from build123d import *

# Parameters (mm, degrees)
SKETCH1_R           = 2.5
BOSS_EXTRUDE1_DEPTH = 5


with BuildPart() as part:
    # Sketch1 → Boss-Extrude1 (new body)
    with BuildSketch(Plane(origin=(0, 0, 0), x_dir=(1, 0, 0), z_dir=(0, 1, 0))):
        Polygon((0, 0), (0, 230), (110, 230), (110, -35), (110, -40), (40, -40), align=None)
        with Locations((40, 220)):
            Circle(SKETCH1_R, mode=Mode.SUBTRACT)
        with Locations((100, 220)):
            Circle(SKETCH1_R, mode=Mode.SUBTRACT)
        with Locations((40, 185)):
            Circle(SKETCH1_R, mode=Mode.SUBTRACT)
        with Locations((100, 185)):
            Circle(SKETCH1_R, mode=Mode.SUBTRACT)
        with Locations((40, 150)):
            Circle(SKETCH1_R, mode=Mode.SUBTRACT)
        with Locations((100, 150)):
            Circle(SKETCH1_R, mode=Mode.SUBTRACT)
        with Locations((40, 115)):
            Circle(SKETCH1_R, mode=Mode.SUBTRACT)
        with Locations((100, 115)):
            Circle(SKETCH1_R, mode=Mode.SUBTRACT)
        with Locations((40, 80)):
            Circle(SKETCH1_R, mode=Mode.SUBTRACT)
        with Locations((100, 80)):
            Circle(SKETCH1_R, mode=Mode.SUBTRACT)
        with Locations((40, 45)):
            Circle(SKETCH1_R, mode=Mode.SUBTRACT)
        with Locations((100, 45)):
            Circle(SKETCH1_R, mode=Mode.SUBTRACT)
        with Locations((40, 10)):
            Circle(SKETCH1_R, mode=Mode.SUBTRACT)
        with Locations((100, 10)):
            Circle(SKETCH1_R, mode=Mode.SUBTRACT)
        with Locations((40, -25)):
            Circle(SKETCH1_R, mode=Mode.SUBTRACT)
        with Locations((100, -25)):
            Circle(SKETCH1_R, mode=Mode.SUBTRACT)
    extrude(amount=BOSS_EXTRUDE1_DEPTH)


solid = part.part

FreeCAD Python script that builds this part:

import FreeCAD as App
import Part
import Sketcher
from FreeCAD import Vector
Q = App.Units.Quantity

doc = App.newDocument("Part")
body = doc.addObject("PartDesign::Body", "Body")

sketch1 = doc.addObject("Sketcher::SketchObject", "Sketch")
body.addObject(sketch1)
sketch1.AttachmentSupport = (doc.XZ_Plane, [""])
sketch1.MapMode = "FlatFace"
sketch1.addGeometry([
    Part.LineSegment(Vector(0, -230, 0), Vector(0, 0, 0)),
    Part.LineSegment(Vector(0, 0, 0), Vector(40, 40, 0)),
    Part.LineSegment(Vector(40, 40, 0), Vector(110, 40, 0)),
    Part.LineSegment(Vector(110, 40, 0), Vector(110, -230, 0)),
    Part.LineSegment(Vector(110, -230, 0), Vector(0, -230, 0)),
    Part.Circle(Vector(100, 25, 0), Vector(0, 0, 1), 2.5),
    Part.Circle(Vector(100, -10, 0), Vector(0, 0, 1), 2.5),
    Part.Circle(Vector(100, -45, 0), Vector(0, 0, 1), 2.5),
    Part.Circle(Vector(100, -80, 0), Vector(0, 0, 1), 2.5),
    Part.Circle(Vector(40, 25, 0), Vector(0, 0, 1), 2.5),
    Part.Circle(Vector(40, -10, 0), Vector(0, 0, 1), 2.5),
    Part.Circle(Vector(40, -45, 0), Vector(0, 0, 1), 2.5),
    Part.Circle(Vector(40, -80, 0), Vector(0, 0, 1), 2.5),
    Part.Circle(Vector(100, -115, 0), Vector(0, 0, 1), 2.5),
    Part.Circle(Vector(100, -150, 0), Vector(0, 0, 1), 2.5),
    Part.Circle(Vector(100, -185, 0), Vector(0, 0, 1), 2.5),
    Part.Circle(Vector(100, -220, 0), Vector(0, 0, 1), 2.5),
    Part.Circle(Vector(40, -115, 0), Vector(0, 0, 1), 2.5),
    Part.Circle(Vector(40, -150, 0), Vector(0, 0, 1), 2.5),
    Part.Circle(Vector(40, -185, 0), Vector(0, 0, 1), 2.5),
    Part.Circle(Vector(40, -220, 0), Vector(0, 0, 1), 2.5),
], False)
sketch1.addConstraint([
    Sketcher.Constraint("Coincident", 0, 2, 1, 1),
    Sketcher.Constraint("Coincident", 1, 2, 2, 1),
    Sketcher.Constraint("Coincident", 2, 2, 3, 1),
    Sketcher.Constraint("Coincident", 3, 2, 4, 1),
    Sketcher.Constraint("Coincident", 4, 2, 0, 1),
    Sketcher.Constraint("Vertical", 0),
    Sketcher.Constraint("Horizontal", 2),
    Sketcher.Constraint("Vertical", 3),
    Sketcher.Constraint("Horizontal", 4),
    Sketcher.Constraint("Coincident", 0, 2, -1, 1),
    Sketcher.Constraint("Equal", 5, 6),
    Sketcher.Constraint("Equal", 6, 7),
    Sketcher.Constraint("Equal", 7, 8),
    Sketcher.Constraint("Equal", 8, 9),
    Sketcher.Constraint("Equal", 9, 10),
    Sketcher.Constraint("Equal", 10, 11),
    Sketcher.Constraint("Equal", 11, 12),
    Sketcher.Constraint("Equal", 12, 13),
    Sketcher.Constraint("Equal", 13, 14),
    Sketcher.Constraint("Equal", 14, 15),
    Sketcher.Constraint("Equal", 15, 16),
    Sketcher.Constraint("Equal", 16, 17),
    Sketcher.Constraint("Equal", 17, 18),
    Sketcher.Constraint("Equal", 18, 19),
    Sketcher.Constraint("Equal", 19, 20),
    Sketcher.Constraint("Horizontal", 5, 3, 9, 3),
    Sketcher.Constraint("Horizontal", 6, 3, 10, 3),
    Sketcher.Constraint("Horizontal", 7, 3, 11, 3),
    Sketcher.Constraint("Horizontal", 8, 3, 12, 3),
    Sketcher.Constraint("Horizontal", 13, 3, 17, 3),
    Sketcher.Constraint("Horizontal", 14, 3, 18, 3),
    Sketcher.Constraint("Horizontal", 15, 3, 19, 3),
    Sketcher.Constraint("Horizontal", 16, 3, 20, 3),
    Sketcher.Constraint("Vertical", 5, 3, 6, 3),
    Sketcher.Constraint("Vertical", 6, 3, 7, 3),
    Sketcher.Constraint("Vertical", 7, 3, 8, 3),
    Sketcher.Constraint("Vertical", 9, 3, 10, 3),
    Sketcher.Constraint("Vertical", 10, 3, 11, 3),
    Sketcher.Constraint("Vertical", 11, 3, 12, 3),
    Sketcher.Constraint("Vertical", 8, 3, 13, 3),
    Sketcher.Constraint("Vertical", 13, 3, 14, 3),
    Sketcher.Constraint("Vertical", 14, 3, 15, 3),
    Sketcher.Constraint("Vertical", 15, 3, 16, 3),
    Sketcher.Constraint("Vertical", 12, 3, 17, 3),
    Sketcher.Constraint("Vertical", 17, 3, 18, 3),
    Sketcher.Constraint("Vertical", 18, 3, 19, 3),
    Sketcher.Constraint("Vertical", 19, 3, 20, 3),
    Sketcher.Constraint("Vertical", 20, 3, 1, 2),
    Sketcher.Constraint("Diameter", 5, Q("5 mm")),
    Sketcher.Constraint("DistanceX", 2, 1, 2, 2, Q("70 mm")),
    Sketcher.Constraint("DistanceX", 4, 2, 4, 1, Q("110 mm")),
    Sketcher.Constraint("DistanceY", 0, 1, 0, 2, Q("230 mm")),
    Sketcher.Constraint("DistanceY", 3, 2, 3, 1, Q("270 mm")),
    Sketcher.Constraint("DistanceX", -1, 1, 5, 3, Q("100 mm")),
    Sketcher.Constraint("DistanceY", -1, 1, 5, 3, Q("25 mm")),
    Sketcher.Constraint("DistanceY", 6, 3, -1, 1, Q("10 mm")),
    Sketcher.Constraint("DistanceY", 7, 3, -1, 1, Q("45 mm")),
    Sketcher.Constraint("DistanceY", 8, 3, -1, 1, Q("80 mm")),
    Sketcher.Constraint("DistanceY", 13, 3, -1, 1, Q("115 mm")),
    Sketcher.Constraint("DistanceY", 14, 3, -1, 1, Q("150 mm")),
    Sketcher.Constraint("DistanceY", 15, 3, -1, 1, Q("185 mm")),
    Sketcher.Constraint("DistanceY", 16, 3, -1, 1, Q("220 mm")),
])
pad1 = doc.addObject("PartDesign::Pad", "Pad")
body.addObject(pad1)
pad1.Profile = sketch1
pad1.Length = 5
pad1.Reversed = True

doc.recompute()
